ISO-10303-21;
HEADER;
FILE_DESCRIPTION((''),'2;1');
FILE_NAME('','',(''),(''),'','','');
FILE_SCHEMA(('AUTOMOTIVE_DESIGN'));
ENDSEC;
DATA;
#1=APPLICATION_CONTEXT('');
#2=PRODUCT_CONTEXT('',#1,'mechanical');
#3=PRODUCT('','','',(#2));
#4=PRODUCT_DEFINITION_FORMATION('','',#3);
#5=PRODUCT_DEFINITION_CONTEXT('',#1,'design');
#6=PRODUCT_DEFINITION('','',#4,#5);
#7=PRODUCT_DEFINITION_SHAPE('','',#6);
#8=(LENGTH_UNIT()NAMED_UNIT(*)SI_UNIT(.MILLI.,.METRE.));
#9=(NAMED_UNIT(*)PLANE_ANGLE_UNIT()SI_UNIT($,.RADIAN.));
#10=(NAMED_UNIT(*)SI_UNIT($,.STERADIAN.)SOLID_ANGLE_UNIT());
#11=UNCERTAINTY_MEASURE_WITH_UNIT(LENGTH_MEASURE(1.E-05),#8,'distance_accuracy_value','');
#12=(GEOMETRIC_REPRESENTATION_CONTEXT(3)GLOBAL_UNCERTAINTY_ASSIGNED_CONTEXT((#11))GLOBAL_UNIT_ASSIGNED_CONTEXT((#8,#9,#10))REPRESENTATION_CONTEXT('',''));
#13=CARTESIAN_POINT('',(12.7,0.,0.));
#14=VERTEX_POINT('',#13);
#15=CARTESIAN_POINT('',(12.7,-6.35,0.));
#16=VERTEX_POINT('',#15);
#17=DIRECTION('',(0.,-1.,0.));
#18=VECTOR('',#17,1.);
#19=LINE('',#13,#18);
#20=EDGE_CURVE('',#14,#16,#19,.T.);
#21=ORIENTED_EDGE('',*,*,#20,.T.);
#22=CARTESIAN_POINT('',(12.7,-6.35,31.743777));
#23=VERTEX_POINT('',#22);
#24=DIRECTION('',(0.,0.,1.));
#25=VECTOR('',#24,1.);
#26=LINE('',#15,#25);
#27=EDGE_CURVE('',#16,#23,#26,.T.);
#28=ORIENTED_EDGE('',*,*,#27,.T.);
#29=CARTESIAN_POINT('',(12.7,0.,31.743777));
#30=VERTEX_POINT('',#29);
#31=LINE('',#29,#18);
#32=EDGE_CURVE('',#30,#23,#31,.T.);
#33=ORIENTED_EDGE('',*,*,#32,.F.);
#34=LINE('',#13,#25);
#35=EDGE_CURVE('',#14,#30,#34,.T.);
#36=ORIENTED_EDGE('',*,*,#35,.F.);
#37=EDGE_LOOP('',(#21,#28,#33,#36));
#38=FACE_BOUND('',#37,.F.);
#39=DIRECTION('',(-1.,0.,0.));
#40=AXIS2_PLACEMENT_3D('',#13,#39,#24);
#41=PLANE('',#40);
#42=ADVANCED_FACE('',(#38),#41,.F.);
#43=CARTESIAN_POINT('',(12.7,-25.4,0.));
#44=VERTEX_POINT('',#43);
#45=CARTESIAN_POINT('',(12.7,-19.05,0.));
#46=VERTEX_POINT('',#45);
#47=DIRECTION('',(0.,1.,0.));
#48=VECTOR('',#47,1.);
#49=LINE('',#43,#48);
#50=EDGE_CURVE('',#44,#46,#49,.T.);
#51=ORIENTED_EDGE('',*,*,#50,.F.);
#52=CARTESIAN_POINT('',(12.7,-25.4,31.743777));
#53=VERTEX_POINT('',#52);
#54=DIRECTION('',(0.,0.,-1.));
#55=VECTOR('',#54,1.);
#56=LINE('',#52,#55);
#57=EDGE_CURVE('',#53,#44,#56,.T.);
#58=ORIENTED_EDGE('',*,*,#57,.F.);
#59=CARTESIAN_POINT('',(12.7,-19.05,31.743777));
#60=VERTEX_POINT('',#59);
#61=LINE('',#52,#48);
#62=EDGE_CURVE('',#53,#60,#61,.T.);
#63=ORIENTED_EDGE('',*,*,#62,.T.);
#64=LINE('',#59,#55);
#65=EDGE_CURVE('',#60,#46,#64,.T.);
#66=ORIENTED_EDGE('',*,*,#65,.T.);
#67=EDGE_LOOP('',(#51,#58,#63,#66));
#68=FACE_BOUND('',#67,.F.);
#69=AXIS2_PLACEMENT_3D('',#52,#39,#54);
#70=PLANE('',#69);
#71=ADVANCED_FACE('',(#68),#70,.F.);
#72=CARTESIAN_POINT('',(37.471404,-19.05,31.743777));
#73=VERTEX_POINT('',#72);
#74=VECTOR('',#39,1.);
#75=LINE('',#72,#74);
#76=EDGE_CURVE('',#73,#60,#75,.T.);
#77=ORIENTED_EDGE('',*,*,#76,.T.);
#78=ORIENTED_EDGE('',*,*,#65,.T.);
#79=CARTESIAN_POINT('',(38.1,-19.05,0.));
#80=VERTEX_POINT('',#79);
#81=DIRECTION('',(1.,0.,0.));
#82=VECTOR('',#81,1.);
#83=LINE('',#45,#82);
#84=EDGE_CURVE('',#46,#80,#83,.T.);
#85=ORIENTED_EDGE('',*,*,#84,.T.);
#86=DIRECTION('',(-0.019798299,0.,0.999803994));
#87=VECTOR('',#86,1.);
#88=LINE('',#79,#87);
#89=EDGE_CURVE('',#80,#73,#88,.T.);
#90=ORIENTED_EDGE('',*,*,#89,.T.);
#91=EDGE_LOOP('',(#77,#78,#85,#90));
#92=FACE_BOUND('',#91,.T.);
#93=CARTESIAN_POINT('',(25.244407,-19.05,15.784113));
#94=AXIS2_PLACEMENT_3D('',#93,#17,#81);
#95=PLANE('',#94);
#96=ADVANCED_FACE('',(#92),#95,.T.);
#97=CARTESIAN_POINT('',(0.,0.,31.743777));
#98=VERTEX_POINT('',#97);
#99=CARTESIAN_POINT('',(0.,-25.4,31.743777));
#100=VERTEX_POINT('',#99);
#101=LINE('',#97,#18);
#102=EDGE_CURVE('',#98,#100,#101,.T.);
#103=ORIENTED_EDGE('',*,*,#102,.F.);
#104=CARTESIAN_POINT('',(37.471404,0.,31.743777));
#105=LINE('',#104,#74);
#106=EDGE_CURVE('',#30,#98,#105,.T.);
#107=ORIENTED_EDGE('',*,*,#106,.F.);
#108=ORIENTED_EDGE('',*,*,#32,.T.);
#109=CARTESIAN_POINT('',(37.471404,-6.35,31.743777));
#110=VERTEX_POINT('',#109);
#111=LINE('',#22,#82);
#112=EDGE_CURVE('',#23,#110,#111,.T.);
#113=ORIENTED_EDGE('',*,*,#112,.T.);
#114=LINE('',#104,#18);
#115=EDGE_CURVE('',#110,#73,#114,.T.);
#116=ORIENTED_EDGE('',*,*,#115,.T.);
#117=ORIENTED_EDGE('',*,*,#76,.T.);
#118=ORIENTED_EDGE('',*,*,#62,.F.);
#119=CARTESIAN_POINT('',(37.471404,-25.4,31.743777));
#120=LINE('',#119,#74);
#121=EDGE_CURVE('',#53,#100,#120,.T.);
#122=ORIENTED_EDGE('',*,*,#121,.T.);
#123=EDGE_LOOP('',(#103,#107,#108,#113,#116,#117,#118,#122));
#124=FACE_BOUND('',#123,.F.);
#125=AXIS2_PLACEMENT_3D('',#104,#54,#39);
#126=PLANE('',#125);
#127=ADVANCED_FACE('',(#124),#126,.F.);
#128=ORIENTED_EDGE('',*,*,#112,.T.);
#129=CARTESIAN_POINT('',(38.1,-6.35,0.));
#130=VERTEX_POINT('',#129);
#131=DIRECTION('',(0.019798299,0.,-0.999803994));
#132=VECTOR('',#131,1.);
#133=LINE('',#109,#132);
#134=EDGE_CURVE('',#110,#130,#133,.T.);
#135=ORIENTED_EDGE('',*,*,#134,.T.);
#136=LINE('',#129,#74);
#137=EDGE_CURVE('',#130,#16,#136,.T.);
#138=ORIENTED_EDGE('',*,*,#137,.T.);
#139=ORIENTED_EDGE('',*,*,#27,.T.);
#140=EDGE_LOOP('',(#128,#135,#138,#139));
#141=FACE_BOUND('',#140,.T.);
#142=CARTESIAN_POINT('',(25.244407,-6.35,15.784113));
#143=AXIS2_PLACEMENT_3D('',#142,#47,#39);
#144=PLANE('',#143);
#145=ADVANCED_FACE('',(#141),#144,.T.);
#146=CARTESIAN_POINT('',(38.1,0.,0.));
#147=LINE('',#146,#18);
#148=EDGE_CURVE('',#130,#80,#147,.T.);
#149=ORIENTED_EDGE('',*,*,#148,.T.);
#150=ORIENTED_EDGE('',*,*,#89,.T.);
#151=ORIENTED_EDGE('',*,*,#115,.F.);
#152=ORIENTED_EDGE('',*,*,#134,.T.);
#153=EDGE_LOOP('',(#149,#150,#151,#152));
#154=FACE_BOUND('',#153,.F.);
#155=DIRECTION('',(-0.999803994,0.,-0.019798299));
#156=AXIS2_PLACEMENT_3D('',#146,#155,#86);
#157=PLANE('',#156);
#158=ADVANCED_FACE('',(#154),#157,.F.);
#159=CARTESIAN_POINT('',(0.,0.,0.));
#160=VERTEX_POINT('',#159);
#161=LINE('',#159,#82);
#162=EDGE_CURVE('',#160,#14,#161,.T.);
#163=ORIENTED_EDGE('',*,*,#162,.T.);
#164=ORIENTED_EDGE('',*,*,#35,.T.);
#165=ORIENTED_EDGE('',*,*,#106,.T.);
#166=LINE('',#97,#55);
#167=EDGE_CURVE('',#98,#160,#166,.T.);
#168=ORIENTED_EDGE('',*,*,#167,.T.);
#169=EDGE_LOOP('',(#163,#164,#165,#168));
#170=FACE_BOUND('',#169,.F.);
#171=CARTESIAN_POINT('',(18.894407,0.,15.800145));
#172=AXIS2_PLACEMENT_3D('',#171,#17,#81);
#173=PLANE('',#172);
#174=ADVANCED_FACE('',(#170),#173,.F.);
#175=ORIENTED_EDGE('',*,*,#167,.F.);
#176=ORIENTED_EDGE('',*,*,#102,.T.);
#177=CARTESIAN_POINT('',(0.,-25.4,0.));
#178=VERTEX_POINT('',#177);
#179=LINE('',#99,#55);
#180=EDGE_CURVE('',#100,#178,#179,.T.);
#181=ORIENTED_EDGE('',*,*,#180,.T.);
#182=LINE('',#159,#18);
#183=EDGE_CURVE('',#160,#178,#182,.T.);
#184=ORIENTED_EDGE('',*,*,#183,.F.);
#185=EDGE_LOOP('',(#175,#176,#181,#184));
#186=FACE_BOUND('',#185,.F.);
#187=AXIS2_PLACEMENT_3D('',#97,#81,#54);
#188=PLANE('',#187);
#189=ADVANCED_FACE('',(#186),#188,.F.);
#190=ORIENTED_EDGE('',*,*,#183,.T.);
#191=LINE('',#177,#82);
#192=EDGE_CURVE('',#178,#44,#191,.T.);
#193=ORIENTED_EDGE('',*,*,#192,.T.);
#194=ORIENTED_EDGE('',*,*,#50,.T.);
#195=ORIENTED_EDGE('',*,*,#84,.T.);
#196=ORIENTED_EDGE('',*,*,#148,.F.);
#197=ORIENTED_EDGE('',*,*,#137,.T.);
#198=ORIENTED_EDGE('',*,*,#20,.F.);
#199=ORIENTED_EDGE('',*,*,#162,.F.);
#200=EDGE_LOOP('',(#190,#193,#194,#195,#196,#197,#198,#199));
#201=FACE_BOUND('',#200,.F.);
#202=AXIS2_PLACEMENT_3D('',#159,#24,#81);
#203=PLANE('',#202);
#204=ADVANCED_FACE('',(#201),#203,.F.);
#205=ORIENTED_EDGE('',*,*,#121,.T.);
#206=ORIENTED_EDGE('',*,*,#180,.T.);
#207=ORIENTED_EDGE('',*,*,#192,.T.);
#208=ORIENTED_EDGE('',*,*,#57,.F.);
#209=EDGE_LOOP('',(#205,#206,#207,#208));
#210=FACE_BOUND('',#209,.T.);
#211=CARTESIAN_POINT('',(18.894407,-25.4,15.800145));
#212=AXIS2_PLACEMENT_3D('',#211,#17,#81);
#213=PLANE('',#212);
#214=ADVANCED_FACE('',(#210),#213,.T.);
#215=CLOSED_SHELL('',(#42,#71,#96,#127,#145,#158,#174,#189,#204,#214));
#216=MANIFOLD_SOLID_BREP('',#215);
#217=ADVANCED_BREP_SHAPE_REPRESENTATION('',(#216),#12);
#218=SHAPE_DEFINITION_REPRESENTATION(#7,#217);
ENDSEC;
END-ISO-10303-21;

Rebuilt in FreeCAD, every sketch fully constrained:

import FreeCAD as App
import Part
import Sketcher

V = App.Vector
Q = App.Units.Quantity


def add_polygon(sketch, points):
    """Adds a closed chain of lines whose ends are joined by coincident constraints."""
    first, n = sketch.GeometryCount, len(points)
    for a, b in zip(points, points[1:] + points[:1]):
        sketch.addGeometry(Part.LineSegment(App.Vector(*a, 0), App.Vector(*b, 0)), False)
    for i in range(n):
        sketch.addConstraint(Sketcher.Constraint("Coincident", first + i, 2, first + (i + 1) % n, 1))

doc = App.newDocument("Part")
body = doc.addObject("PartDesign::Body", "Body")

sketch1 = body.newObject("Sketcher::SketchObject", "Sketch")
sketch1.AttachmentSupport = (doc.getObject("XZ_Plane"), [""])
sketch1.MapMode = "FlatFace"
add_polygon(sketch1, [(37.471404, 31.743777), (0, 31.743777), (0, 0), (38.1, 0)])
sketch1.addConstraint(Sketcher.Constraint("Horizontal", 0))
sketch1.addConstraint(Sketcher.Constraint("Vertical", 1))
sketch1.addConstraint(Sketcher.Constraint("Horizontal", 2))
sketch1.addConstraint(Sketcher.Constraint("Coincident", 1, 2, -1, 1))
sketch1.addConstraint(Sketcher.Constraint("DistanceX", 2, 1, 2, 2, Q("1.5 in")))
sketch1.addConstraint(Sketcher.Constraint("Distance", 3, Q("1.25 in")))
sketch1.addConstraint(Sketcher.Constraint("DistanceX", 0, 2, 0, 1, 37.471404))
pad1 = body.newObject("PartDesign::Pad", "Pad")
pad1.Profile = sketch1
pad1.Length = Q("1 in")

sketch2 = body.newObject("Sketcher::SketchObject", "Sketch001")
sketch2.AttachmentSupport = (doc.getObject("XZ_Plane"), [""])
sketch2.MapMode = "FlatFace"
sketch2.AttachmentOffset = App.Placement(V(0, 0, 1 * 25.4), App.Rotation())
add_polygon(sketch2, [(37.471404, 31.743777), (12.7, 31.743777), (12.7, 0), (38.1, 0)])
sketch2.addConstraint(Sketcher.Constraint("Horizontal", 0))
sketch2.addConstraint(Sketcher.Constraint("Vertical", 1))
sketch2.addConstraint(Sketcher.Constraint("Horizontal", 2))
sketch2.addConstraint(Sketcher.Constraint("PointOnObject", 1, 2, -1))
sketch2.addConstraint(Sketcher.Constraint("DistanceX", 2, 1, 2, 2, Q("1 in")))
sketch2.addConstraint(Sketcher.Constraint("DistanceX", -1, 1, 0, 2, Q("0.5 in")))
sketch2.addConstraint(Sketcher.Constraint("Distance", 3, Q("1.25 in")))
sketch2.addConstraint(Sketcher.Constraint("DistanceX", 0, 2, 0, 1, 24.771404))
pocket1 = body.newObject("PartDesign::Pocket", "Pocket")
pocket1.Profile = sketch2
pocket1.Length = Q("0.25 in")

sketch3 = body.newObject("Sketcher::SketchObject", "Sketch002")
sketch3.AttachmentSupport = (doc.getObject("XZ_Plane"), [""])
sketch3.MapMode = "FlatFace"
add_polygon(sketch3, [(38.1, 0), (12.7, 0), (12.7, 31.743777), (37.471404, 31.743777)])
sketch3.addConstraint(Sketcher.Constraint("Horizontal", 0))
sketch3.addConstraint(Sketcher.Constraint("Vertical", 1))
sketch3.addConstraint(Sketcher.Constraint("Horizontal", 2))
sketch3.addConstraint(Sketcher.Constraint("PointOnObject", 0, 2, -1))
sketch3.addConstraint(Sketcher.Constraint("DistanceX", 0, 2, 0, 1, Q("1 in")))
sketch3.addConstraint(Sketcher.Constraint("DistanceX", -1, 1, 0, 2, Q("0.5 in")))
sketch3.addConstraint(Sketcher.Constraint("Distance", 3, Q("1.25 in")))
sketch3.addConstraint(Sketcher.Constraint("DistanceX", 2, 1, 2, 2, 24.771404))
pocket2 = body.newObject("PartDesign::Pocket", "Pocket001")
pocket2.Profile = sketch3
pocket2.Length = Q("0.25 in")
pocket2.Reversed = True

doc.recompute()
